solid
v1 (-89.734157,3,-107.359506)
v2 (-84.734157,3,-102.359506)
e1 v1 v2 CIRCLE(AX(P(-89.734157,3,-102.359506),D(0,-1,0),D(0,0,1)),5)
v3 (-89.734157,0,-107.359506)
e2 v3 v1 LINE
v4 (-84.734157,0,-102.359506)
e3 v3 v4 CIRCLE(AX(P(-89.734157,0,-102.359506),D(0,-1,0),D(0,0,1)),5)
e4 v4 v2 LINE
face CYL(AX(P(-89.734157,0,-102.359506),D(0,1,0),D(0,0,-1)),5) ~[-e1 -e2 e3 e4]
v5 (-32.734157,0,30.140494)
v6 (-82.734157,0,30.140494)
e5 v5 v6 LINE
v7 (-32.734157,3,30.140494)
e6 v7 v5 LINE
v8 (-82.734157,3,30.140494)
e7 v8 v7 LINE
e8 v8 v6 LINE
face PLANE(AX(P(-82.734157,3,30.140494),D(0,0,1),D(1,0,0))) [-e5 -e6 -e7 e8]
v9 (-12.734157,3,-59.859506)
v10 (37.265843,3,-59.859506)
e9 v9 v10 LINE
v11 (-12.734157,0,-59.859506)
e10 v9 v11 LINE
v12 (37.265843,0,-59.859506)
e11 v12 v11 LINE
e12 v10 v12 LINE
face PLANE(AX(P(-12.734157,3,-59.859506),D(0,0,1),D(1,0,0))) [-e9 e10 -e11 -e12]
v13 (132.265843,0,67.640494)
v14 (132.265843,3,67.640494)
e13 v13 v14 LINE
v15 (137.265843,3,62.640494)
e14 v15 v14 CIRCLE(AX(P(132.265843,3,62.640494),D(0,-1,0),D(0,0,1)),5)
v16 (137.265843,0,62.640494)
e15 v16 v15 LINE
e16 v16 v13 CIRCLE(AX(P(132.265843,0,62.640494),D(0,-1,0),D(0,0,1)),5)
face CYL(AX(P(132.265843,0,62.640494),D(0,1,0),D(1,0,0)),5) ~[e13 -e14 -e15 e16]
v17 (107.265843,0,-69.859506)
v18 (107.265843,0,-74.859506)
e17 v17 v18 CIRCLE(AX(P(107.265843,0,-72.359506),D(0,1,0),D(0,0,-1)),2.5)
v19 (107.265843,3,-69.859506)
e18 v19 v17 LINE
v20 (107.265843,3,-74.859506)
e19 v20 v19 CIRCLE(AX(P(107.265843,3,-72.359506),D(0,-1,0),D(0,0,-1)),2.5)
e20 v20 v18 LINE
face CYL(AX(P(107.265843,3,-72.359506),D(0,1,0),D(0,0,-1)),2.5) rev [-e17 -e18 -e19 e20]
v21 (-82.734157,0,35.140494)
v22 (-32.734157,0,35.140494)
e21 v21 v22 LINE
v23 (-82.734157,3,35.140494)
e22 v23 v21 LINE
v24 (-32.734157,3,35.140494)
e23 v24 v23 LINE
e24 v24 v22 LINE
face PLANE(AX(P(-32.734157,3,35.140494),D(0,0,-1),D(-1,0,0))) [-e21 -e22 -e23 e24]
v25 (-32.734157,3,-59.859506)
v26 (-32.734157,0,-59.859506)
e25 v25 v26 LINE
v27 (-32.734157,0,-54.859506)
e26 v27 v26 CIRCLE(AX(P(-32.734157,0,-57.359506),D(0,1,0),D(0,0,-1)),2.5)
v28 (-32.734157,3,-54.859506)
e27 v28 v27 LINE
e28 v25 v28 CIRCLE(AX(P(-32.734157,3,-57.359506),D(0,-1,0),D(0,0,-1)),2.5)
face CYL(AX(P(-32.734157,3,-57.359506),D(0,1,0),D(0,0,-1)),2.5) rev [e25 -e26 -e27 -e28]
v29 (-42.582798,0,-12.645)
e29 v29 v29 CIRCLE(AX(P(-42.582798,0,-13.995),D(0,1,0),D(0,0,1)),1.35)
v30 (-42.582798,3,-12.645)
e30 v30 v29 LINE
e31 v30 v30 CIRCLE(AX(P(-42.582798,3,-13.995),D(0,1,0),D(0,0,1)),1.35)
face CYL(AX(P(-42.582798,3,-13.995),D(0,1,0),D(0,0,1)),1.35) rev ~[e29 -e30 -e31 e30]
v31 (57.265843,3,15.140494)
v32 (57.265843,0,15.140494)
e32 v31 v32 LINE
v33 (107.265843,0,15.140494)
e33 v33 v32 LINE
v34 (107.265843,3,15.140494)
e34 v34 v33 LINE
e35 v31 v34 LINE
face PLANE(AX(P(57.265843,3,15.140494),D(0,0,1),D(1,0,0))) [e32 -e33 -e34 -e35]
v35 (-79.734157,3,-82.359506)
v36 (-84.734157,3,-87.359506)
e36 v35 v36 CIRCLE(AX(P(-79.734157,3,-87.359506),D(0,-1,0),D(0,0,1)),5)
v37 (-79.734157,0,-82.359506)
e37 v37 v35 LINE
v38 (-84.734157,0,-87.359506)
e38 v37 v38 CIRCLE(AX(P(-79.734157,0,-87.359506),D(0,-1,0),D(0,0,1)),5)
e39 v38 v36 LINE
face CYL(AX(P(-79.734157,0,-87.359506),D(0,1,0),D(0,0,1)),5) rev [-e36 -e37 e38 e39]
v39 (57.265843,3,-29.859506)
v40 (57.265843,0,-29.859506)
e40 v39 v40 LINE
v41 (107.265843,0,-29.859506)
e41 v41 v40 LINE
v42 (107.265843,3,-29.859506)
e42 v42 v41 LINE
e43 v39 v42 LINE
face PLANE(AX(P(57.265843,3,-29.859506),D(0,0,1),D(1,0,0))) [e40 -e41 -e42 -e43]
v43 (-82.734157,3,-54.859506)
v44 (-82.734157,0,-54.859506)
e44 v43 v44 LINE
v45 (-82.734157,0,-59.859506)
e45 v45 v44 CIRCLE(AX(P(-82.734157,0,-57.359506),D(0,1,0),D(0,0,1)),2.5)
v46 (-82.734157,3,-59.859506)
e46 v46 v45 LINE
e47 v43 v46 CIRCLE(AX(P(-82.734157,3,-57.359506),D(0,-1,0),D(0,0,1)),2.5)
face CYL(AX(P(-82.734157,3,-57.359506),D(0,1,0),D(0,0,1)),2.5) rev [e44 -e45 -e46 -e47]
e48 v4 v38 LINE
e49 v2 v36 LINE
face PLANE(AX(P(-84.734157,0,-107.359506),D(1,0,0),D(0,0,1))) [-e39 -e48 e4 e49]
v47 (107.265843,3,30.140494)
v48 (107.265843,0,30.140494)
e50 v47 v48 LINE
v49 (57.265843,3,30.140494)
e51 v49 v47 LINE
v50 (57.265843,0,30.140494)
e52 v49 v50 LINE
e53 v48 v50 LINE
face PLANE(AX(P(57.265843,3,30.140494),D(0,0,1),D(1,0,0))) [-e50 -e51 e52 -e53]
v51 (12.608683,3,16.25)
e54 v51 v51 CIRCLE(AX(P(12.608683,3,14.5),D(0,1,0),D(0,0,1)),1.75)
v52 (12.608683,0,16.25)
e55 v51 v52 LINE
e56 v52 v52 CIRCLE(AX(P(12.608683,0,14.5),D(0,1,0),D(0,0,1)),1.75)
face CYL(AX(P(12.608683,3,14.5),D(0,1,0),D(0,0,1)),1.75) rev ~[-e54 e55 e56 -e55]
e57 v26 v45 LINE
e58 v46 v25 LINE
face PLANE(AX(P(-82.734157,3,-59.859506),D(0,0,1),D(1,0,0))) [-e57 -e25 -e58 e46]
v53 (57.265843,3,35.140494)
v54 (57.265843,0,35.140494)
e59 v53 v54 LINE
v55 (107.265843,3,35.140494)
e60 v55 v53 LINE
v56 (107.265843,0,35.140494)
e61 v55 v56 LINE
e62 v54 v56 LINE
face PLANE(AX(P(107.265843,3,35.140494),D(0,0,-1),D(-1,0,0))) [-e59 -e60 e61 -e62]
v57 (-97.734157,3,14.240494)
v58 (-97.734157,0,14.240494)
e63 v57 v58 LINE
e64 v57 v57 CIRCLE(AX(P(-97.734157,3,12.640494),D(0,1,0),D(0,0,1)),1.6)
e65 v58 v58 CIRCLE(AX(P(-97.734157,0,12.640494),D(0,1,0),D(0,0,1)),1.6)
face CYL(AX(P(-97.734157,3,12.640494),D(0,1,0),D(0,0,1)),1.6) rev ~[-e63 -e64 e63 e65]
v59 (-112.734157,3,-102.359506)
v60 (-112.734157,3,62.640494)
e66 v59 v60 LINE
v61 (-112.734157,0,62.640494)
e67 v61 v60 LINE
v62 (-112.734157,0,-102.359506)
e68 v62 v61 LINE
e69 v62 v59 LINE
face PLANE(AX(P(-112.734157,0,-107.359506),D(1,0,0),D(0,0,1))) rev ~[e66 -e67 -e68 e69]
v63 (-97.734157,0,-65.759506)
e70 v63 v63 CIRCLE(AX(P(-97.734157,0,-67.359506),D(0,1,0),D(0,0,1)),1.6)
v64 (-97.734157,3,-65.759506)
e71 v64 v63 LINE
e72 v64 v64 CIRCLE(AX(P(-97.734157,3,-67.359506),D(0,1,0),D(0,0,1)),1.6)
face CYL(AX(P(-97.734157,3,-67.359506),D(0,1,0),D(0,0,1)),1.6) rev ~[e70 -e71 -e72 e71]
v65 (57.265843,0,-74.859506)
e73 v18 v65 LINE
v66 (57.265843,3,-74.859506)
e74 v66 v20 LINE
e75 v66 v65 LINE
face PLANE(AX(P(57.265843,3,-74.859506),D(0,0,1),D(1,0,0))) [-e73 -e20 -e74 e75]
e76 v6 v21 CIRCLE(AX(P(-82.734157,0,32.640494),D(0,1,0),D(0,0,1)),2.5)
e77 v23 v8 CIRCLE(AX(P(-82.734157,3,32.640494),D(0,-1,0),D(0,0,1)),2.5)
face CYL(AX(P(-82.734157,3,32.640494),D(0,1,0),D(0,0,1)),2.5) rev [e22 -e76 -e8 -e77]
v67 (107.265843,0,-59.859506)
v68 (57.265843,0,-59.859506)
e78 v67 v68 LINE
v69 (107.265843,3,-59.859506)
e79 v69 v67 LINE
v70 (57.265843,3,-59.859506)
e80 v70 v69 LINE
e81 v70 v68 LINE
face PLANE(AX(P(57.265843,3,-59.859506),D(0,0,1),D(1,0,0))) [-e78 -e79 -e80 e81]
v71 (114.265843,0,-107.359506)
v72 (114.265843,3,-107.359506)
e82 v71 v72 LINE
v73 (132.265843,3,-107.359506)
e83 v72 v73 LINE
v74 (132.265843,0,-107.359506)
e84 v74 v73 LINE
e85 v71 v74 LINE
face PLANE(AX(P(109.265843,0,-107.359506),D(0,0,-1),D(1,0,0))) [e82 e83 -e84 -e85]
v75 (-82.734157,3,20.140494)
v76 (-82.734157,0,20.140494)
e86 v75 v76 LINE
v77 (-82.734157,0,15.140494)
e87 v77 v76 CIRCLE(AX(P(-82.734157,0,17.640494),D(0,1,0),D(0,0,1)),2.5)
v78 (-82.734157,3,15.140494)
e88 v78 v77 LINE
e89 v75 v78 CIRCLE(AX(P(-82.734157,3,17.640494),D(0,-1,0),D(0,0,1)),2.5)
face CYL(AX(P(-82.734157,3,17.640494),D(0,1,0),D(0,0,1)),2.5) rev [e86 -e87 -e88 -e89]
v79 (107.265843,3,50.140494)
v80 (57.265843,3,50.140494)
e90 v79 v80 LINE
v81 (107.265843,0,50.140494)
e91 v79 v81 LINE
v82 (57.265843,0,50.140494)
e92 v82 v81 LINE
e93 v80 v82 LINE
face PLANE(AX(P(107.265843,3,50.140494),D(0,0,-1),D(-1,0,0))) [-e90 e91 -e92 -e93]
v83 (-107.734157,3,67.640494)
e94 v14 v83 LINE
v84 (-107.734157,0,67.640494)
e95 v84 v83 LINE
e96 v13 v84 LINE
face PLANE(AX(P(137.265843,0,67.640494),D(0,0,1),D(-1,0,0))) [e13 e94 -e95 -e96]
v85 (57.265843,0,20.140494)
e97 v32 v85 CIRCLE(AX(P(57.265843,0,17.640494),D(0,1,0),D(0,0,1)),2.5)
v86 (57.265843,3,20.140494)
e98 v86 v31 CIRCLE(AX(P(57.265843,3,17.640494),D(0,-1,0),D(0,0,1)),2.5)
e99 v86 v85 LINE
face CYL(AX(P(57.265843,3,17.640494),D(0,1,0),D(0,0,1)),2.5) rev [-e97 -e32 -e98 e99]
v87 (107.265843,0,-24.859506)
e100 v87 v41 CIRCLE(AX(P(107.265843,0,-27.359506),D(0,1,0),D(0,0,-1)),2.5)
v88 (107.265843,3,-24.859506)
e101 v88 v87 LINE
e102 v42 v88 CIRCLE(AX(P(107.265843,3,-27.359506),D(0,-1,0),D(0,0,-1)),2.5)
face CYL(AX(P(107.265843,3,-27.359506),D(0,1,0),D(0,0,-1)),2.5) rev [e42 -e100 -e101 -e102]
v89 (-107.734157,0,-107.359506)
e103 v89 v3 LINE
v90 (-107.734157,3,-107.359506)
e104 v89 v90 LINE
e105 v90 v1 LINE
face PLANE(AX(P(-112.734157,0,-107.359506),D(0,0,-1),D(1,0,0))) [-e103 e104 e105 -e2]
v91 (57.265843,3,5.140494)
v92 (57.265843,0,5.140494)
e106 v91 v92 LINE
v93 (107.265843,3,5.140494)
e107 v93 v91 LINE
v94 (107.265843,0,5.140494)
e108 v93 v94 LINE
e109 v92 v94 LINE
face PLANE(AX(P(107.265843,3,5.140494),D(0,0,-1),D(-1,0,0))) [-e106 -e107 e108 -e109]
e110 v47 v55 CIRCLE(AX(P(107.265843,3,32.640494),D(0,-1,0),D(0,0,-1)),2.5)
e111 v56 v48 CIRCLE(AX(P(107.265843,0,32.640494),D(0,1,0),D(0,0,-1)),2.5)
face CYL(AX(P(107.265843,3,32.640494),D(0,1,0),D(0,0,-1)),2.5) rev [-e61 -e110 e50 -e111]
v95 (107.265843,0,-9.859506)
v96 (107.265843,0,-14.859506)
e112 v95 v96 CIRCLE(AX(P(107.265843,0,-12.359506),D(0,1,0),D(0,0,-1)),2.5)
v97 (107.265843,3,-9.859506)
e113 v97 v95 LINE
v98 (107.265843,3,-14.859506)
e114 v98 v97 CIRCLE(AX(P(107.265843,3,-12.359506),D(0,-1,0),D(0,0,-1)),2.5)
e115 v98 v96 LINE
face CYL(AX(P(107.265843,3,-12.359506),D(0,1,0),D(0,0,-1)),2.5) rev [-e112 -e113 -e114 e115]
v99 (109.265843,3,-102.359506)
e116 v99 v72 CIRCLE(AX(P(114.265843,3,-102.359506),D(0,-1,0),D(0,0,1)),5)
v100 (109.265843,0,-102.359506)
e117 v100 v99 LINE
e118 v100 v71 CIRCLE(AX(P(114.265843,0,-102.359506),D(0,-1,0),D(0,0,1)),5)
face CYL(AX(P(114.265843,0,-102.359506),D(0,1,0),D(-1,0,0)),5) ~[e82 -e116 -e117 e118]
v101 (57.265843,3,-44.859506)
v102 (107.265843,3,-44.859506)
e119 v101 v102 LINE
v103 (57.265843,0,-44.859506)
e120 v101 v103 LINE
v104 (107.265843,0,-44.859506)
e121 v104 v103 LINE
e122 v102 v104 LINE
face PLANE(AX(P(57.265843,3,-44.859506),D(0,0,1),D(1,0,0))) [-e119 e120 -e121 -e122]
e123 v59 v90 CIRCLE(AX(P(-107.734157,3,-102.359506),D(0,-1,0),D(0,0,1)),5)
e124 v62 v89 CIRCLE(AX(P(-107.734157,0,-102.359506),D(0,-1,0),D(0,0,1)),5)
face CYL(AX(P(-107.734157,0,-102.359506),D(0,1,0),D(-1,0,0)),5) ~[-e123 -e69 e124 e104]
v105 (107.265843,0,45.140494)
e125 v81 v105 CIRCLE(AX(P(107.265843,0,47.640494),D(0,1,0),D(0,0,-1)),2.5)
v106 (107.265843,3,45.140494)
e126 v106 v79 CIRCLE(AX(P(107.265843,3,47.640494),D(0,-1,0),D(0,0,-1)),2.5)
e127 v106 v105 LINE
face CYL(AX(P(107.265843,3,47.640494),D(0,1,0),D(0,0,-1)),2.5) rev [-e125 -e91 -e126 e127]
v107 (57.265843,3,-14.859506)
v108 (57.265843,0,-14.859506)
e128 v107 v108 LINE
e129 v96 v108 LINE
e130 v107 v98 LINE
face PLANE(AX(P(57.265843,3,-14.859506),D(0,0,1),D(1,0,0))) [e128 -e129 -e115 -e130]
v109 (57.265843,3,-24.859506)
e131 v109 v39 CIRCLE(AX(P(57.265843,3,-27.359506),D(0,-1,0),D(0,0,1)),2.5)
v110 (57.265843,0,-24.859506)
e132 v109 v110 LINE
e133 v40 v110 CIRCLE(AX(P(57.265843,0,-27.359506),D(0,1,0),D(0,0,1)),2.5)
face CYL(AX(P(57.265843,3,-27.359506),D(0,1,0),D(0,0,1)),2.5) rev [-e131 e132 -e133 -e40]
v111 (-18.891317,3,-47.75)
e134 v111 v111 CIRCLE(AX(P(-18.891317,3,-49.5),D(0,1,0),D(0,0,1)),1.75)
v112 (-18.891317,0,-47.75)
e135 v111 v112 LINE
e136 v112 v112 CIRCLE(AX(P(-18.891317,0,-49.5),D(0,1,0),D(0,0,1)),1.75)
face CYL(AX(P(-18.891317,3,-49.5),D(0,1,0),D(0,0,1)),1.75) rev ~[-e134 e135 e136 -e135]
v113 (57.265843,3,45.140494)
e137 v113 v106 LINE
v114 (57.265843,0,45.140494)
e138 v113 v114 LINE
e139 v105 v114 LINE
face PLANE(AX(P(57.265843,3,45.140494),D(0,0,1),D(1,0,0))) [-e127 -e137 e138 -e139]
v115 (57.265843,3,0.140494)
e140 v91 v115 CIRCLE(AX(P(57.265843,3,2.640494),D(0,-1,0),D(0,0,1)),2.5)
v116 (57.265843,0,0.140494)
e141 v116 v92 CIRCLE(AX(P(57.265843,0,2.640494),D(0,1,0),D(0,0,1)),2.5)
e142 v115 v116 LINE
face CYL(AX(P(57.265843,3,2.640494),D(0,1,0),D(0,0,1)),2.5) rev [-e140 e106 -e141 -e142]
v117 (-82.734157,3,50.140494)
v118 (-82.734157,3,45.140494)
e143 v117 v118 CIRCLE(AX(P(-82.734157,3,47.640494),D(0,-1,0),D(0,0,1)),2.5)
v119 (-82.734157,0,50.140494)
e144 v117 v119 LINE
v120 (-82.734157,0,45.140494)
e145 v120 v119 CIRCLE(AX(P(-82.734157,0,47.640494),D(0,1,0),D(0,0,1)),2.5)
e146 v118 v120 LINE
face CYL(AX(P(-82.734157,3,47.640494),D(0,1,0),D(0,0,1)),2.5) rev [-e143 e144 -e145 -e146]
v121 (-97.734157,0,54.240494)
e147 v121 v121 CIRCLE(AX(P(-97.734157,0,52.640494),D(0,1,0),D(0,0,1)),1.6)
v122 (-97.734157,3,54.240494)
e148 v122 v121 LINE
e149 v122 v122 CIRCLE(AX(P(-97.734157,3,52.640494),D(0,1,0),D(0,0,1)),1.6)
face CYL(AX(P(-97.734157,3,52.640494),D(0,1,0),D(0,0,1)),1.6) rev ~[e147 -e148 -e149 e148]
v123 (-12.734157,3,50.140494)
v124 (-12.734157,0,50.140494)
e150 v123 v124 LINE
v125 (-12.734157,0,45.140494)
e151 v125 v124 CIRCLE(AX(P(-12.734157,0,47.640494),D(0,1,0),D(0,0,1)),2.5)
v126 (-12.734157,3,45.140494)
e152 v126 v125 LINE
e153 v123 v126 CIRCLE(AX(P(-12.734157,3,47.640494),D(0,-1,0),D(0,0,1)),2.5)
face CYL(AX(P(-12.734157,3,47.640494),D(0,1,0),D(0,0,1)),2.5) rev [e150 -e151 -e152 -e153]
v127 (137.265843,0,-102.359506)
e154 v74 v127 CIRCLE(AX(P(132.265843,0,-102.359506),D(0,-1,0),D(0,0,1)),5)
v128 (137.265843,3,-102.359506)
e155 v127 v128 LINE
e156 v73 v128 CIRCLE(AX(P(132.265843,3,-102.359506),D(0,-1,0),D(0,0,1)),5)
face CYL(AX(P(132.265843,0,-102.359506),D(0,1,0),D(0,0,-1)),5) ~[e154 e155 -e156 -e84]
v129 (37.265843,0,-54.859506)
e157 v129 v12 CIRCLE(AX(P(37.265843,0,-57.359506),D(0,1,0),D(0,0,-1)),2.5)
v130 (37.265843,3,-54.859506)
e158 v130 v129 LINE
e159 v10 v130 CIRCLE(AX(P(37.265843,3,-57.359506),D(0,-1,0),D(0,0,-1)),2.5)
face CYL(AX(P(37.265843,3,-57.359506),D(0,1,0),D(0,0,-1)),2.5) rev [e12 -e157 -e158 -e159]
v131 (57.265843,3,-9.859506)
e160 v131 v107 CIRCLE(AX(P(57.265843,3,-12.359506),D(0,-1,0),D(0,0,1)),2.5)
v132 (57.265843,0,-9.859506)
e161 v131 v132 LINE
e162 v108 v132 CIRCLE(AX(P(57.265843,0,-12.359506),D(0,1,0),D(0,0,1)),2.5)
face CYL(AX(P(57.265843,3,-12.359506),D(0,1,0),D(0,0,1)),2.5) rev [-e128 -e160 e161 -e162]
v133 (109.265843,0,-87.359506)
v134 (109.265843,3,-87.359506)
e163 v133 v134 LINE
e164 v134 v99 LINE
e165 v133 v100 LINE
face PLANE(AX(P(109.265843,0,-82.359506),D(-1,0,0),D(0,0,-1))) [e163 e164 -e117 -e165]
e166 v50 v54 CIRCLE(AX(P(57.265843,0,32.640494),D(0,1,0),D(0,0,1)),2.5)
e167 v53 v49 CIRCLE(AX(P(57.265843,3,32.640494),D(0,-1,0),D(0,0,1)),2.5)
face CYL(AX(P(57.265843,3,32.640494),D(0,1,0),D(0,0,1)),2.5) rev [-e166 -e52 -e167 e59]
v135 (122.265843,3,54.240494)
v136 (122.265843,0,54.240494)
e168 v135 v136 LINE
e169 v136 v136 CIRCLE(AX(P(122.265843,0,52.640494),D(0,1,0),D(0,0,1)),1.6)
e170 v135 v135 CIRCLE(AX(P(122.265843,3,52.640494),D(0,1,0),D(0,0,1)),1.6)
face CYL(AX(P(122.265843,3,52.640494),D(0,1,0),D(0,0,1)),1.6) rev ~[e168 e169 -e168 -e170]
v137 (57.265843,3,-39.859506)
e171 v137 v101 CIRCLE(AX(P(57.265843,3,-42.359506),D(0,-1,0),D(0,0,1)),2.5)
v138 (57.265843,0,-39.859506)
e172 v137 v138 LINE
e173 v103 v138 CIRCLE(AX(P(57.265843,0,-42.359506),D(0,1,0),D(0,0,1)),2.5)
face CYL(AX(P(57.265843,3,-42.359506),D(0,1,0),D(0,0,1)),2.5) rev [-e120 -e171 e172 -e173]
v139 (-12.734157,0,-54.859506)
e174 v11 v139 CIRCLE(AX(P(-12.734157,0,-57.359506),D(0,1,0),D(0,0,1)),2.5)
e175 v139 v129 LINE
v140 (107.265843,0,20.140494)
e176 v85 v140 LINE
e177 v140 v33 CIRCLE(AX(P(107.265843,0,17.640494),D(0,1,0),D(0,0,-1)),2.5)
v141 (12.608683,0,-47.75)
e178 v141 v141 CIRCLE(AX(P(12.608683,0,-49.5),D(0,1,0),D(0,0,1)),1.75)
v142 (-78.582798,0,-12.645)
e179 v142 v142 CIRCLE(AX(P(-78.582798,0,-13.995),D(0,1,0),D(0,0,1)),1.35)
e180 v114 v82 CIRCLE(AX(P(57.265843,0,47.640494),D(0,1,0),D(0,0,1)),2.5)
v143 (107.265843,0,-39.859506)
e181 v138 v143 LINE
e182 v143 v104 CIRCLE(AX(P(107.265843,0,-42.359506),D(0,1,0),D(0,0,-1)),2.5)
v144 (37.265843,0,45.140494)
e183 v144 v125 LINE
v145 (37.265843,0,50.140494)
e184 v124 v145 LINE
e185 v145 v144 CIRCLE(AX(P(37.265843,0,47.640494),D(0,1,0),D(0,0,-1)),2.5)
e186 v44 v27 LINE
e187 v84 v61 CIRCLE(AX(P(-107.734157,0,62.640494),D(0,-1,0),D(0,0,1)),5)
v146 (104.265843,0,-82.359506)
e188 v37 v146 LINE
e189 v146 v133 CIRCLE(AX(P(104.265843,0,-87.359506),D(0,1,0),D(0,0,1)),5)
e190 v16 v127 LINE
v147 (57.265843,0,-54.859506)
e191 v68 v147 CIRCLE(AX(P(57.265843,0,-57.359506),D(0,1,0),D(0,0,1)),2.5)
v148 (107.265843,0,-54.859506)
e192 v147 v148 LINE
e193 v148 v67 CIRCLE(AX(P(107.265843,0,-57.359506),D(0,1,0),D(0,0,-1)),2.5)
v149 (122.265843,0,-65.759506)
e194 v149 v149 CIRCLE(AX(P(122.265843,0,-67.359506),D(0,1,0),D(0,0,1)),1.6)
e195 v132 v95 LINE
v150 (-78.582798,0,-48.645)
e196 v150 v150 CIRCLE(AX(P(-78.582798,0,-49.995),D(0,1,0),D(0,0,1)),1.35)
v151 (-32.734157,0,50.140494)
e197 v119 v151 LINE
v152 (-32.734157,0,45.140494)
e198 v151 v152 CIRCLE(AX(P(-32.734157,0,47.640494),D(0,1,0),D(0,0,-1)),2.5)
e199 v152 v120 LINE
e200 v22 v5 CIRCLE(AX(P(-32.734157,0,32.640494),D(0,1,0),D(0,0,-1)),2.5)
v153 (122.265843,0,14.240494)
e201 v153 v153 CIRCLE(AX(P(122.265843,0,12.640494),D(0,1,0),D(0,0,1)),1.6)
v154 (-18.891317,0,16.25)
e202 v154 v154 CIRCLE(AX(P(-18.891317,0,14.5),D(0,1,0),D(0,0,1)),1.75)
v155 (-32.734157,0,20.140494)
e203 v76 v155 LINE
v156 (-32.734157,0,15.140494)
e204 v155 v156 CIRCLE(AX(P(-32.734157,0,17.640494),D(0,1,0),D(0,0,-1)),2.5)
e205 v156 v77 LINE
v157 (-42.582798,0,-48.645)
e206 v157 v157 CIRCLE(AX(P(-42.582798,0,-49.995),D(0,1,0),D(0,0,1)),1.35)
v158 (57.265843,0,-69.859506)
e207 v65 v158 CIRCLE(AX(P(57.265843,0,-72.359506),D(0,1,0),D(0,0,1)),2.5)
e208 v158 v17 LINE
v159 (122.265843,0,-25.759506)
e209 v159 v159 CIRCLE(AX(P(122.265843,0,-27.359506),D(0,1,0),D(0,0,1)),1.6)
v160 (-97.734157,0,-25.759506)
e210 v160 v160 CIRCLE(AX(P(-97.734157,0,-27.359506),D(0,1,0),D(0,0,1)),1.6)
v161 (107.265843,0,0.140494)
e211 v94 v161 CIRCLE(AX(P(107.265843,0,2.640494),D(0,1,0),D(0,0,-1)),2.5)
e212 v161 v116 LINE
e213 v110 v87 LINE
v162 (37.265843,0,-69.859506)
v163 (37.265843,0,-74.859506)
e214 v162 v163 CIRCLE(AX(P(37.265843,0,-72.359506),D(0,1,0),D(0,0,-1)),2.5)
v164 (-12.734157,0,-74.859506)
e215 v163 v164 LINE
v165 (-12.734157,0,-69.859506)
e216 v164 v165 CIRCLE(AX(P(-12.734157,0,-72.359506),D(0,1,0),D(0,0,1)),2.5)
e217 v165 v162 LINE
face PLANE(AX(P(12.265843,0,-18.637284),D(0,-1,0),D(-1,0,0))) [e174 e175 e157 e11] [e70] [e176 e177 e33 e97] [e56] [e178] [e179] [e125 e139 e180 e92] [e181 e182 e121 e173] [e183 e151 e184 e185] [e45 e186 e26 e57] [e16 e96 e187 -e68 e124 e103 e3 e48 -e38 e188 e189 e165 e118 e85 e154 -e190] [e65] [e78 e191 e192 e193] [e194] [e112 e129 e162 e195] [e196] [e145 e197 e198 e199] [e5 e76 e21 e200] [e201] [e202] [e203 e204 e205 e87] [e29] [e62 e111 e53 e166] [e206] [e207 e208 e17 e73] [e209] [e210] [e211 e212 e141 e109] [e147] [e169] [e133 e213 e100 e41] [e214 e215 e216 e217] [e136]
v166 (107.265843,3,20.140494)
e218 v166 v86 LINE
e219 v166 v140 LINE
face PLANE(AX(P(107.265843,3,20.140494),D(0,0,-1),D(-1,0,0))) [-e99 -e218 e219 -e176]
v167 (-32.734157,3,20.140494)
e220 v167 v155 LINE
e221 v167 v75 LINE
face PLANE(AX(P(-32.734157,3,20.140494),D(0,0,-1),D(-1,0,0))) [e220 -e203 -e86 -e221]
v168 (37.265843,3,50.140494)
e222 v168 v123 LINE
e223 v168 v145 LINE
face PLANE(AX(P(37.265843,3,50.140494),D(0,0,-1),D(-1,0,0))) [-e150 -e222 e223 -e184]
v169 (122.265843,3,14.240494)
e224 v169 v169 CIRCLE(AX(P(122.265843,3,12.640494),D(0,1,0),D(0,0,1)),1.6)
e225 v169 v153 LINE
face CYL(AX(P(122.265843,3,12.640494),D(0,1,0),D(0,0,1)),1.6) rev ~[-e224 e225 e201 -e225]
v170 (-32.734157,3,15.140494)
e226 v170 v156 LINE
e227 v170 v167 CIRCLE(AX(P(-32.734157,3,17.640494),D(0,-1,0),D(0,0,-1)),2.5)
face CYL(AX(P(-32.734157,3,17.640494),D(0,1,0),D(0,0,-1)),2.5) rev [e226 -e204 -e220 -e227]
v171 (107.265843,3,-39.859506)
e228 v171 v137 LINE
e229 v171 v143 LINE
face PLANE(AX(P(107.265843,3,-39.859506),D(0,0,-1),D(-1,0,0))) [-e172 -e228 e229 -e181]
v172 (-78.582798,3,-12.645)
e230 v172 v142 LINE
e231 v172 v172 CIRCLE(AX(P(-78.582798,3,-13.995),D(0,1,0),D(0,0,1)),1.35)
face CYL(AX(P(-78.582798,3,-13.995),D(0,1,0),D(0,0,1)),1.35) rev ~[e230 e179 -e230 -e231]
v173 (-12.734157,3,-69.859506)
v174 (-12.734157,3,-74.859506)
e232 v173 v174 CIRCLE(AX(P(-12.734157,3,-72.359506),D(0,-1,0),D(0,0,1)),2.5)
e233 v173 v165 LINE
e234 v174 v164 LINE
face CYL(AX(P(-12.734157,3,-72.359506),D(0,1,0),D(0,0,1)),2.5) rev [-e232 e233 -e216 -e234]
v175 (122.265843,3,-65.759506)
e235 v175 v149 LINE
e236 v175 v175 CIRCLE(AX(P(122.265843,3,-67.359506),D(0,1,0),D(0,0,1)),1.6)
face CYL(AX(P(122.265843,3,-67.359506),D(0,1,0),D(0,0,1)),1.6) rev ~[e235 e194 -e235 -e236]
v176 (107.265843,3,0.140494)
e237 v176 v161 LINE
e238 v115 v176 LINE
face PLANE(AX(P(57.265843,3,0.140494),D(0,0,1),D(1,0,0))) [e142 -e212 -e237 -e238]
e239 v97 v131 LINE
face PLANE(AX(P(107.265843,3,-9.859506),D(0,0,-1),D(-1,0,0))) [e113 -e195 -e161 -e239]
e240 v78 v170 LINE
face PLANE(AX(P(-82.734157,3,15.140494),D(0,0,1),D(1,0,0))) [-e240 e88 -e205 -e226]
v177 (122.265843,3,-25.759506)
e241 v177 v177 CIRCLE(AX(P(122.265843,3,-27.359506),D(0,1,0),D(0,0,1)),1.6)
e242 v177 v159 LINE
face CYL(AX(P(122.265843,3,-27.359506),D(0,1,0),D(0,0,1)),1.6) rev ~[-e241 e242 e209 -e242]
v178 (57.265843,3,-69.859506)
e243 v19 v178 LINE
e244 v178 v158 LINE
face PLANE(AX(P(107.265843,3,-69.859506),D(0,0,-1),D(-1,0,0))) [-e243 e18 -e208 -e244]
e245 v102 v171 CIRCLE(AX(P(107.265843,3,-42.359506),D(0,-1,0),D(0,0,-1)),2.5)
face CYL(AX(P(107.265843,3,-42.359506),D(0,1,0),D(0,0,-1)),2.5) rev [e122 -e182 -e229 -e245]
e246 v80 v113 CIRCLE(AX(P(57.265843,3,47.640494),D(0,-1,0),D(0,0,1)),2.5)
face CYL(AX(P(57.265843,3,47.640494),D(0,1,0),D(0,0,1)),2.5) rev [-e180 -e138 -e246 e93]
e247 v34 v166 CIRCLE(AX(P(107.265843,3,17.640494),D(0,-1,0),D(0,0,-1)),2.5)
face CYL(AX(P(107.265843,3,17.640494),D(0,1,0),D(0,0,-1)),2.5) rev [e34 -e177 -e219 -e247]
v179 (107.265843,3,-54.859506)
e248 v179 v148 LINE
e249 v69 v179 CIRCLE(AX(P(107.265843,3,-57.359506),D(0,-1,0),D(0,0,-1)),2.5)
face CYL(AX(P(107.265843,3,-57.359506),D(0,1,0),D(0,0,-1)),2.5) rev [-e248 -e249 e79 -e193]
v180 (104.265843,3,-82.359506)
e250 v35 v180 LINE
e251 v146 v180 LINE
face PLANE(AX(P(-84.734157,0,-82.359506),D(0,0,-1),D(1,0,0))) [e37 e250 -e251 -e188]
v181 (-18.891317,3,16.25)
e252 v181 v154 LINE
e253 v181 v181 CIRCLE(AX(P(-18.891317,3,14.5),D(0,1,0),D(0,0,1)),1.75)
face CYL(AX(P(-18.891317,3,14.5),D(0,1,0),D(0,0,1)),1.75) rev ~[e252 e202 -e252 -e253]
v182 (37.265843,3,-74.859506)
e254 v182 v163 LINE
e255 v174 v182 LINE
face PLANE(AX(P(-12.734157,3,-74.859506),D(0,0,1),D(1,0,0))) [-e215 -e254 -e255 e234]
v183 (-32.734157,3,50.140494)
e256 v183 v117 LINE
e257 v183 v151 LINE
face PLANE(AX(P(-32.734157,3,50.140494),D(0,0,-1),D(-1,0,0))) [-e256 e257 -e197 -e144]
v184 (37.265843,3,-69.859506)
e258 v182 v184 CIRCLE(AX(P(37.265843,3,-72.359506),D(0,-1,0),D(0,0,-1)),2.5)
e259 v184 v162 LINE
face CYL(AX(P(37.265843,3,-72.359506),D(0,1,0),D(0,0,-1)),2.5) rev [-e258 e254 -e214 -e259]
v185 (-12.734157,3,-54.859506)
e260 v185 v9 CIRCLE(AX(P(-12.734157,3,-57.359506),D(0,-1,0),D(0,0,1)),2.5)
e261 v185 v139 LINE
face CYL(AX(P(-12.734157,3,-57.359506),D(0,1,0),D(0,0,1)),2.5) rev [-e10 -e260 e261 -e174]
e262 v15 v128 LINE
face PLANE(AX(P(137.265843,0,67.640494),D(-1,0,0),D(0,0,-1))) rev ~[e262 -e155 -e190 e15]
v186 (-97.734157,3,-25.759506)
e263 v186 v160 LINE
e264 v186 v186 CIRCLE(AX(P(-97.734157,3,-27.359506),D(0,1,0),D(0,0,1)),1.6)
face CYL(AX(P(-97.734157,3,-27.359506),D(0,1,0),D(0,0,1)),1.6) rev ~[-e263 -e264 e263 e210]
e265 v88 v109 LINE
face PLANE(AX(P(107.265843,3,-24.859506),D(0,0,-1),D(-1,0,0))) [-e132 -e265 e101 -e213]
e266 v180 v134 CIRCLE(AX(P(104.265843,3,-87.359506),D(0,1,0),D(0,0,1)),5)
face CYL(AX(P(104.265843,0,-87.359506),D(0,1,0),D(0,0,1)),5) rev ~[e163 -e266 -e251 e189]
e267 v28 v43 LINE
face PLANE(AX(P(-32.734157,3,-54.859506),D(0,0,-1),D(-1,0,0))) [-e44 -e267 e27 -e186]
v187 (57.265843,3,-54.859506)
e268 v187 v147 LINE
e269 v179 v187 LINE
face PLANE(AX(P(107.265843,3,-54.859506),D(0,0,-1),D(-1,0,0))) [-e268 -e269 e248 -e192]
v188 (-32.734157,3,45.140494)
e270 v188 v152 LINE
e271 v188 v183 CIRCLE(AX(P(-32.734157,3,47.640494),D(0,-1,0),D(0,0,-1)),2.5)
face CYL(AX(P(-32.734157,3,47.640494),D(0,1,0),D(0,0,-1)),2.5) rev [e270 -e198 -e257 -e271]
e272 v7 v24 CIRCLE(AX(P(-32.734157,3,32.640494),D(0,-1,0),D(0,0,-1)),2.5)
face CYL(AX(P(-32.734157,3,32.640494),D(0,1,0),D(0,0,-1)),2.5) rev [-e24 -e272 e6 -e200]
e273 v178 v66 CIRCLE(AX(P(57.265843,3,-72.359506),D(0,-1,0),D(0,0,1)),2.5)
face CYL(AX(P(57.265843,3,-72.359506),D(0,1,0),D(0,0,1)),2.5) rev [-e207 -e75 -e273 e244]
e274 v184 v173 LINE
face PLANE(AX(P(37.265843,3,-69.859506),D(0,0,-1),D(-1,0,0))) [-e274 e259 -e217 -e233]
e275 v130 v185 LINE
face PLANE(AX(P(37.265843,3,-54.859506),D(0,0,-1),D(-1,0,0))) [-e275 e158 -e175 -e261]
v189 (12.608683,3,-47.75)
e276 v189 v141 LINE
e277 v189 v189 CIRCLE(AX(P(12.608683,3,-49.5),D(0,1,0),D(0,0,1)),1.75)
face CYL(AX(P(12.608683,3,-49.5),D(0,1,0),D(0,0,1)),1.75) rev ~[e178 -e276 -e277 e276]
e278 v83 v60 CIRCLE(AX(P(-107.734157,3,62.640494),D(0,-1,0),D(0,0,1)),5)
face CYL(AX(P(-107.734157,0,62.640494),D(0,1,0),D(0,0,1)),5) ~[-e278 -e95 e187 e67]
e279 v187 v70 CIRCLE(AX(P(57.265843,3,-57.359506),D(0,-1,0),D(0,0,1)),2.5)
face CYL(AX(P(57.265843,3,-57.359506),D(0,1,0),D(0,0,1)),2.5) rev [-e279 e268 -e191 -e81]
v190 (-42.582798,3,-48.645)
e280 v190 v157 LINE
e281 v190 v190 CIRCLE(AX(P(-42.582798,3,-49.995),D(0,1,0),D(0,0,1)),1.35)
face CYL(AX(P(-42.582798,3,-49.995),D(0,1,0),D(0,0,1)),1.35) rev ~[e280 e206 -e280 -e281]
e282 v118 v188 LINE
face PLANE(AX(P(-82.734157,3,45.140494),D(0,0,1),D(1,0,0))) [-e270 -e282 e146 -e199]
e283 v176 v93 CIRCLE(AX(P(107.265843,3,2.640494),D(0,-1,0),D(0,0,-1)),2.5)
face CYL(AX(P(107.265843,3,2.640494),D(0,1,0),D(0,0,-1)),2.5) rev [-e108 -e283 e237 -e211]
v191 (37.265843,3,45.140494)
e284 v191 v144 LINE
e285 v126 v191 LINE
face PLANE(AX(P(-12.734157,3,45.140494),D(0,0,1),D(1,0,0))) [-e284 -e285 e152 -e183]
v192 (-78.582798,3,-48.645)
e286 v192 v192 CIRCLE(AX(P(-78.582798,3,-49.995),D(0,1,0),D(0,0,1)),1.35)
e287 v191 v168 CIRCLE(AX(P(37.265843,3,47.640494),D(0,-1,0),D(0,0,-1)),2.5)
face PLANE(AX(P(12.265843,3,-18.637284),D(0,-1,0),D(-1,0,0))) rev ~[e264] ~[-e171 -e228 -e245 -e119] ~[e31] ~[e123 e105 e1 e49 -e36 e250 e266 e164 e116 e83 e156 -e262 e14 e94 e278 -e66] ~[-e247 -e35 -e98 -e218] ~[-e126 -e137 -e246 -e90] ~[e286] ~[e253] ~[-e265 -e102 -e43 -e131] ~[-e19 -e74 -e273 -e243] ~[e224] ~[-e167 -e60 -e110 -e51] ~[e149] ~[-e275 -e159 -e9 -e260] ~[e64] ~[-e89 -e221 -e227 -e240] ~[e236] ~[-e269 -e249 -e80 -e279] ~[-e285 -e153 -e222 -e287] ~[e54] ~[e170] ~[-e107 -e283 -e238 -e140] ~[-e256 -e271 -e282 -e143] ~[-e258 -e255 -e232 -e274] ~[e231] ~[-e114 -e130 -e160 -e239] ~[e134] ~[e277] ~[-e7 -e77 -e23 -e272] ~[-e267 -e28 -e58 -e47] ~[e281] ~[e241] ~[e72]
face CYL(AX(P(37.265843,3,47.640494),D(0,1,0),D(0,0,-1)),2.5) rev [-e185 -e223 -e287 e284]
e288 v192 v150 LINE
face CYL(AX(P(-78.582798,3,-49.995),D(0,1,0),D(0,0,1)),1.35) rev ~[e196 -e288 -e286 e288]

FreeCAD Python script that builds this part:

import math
import FreeCAD as App
import Part
import Sketcher
from FreeCAD import Vector
Q = App.Units.Quantity


def edges_at(feature, points):
    """Names of the edges that pass closest to the given points."""
    edges = feature.Shape.Edges
    near = lambda p: min(range(len(edges)), key=lambda i: edges[i].distToShape(Part.Vertex(*p))[0])
    return sorted({f"Edge{near(p) + 1}" for p in points})

doc = App.newDocument("Part")
body = doc.addObject("PartDesign::Body", "Body")

sketch1 = doc.addObject("Sketcher::SketchObject", "Sketch")
body.addObject(sketch1)
sketch1.AttachmentSupport = (doc.XZ_Plane, [""])
sketch1.MapMode = "FlatFace"
sketch1.addGeometry([
    Part.LineSegment(Vector(109.265843, -82.359506, 0), Vector(-84.734157, -82.359506, 0)),
    Part.LineSegment(Vector(-84.734157, -82.359506, 0), Vector(-84.734157, -107.359506, 0)),
    Part.LineSegment(Vector(-84.734157, -107.359506, 0), Vector(-112.734157, -107.359506, 0)),
    Part.LineSegment(Vector(-112.734157, -107.359506, 0), Vector(-112.734157, 67.640494, 0)),
    Part.LineSegment(Vector(-112.734157, 67.640494, 0), Vector(137.265843, 67.640494, 0)),
    Part.LineSegment(Vector(137.265843, 67.640494, 0), Vector(137.265843, -107.359506, 0)),
    Part.LineSegment(Vector(137.265843, -107.359506, 0), Vector(109.265843, -107.359506, 0)),
    Part.LineSegment(Vector(109.265843, -107.359506, 0), Vector(109.265843, -82.359506, 0)),
], False)
sketch1.addConstraint([
    Sketcher.Constraint("Coincident", 0, 2, 1, 1),
    Sketcher.Constraint("Coincident", 1, 2, 2, 1),
    Sketcher.Constraint("Coincident", 2, 2, 3, 1),
    Sketcher.Constraint("Coincident", 3, 2, 4, 1),
    Sketcher.Constraint("Coincident", 4, 2, 5, 1),
    Sketcher.Constraint("Coincident", 5, 2, 6, 1),
    Sketcher.Constraint("Coincident", 6, 2, 7, 1),
    Sketcher.Constraint("Coincident", 7, 2, 0, 1),
    Sketcher.Constraint("Horizontal", 0),
    Sketcher.Constraint("Vertical", 1),
    Sketcher.Constraint("Horizontal", 2),
    Sketcher.Constraint("Vertical", 3),
    Sketcher.Constraint("Horizontal", 4),
    Sketcher.Constraint("Vertical", 5),
    Sketcher.Constraint("Horizontal", 6),
    Sketcher.Constraint("Vertical", 7),
    Sketcher.Constraint("Horizontal", 2, 2, 5, 2),
    Sketcher.Constraint("Equal", 2, 6),
    Sketcher.Constraint("DistanceX", 0, 2, 0, 1, Q("194 mm")),
    Sketcher.Constraint("DistanceX", 2, 2, 2, 1, Q("28 mm")),
    Sketcher.Constraint("DistanceY", 1, 2, 1, 1, Q("25 mm")),
    Sketcher.Constraint("DistanceY", 3, 1, 3, 2, Q("175 mm")),
    Sketcher.Constraint("DistanceX", 0, 2, -1, 1, Q("84.734157 mm")),
    Sketcher.Constraint("DistanceY", 0, 2, -1, 1, Q("82.359506 mm")),
])
pad1 = doc.addObject("PartDesign::Pad", "Pad")
body.addObject(pad1)
pad1.Profile = sketch1
pad1.Length = 3
pad1.Reversed = True
doc.recompute()

fillet = doc.addObject("PartDesign::Fillet", "Fillet")
body.addObject(fillet)
fillet.Base = (pad1, edges_at(pad1, [
    (137.266, 1.5, 67.64),
    (-112.734, 1.5, 67.64),
    (-112.734, 1.5, -107.36),
    (-84.734, 1.5, -107.36),
    (-84.734, 1.5, -82.36),
    (109.266, 1.5, -82.36),
    (109.266, 1.5, -107.36),
    (137.266, 1.5, -107.36),
]))
fillet.Radius = 5

sketch2 = doc.addObject("Sketcher::SketchObject", "Sketch001")
body.addObject(sketch2)
sketch2.AttachmentSupport = (doc.XZ_Plane, [""])
sketch2.MapMode = "FlatFace"
sketch2.AttachmentOffset = App.Placement(Vector(0, 0, -3), App.Rotation())
sketch2.addGeometry([
    Part.Circle(Vector(12.608683, -49.5, 0), Vector(0, 0, 1), 1.75),
    Part.Circle(Vector(-18.891317, 14.5, 0), Vector(0, 0, 1), 1.75),
    Part.Circle(Vector(-42.582798, -49.995, 0), Vector(0, 0, 1), 1.35),
    Part.Circle(Vector(-78.582798, -13.995, 0), Vector(0, 0, 1), 1.35),
    Part.Circle(Vector(-42.582798, -13.995, 0), Vector(0, 0, 1), 1.35),
    Part.Circle(Vector(12.608683, 14.5, 0), Vector(0, 0, 1), 1.75),
    Part.Circle(Vector(-18.891317, -49.5, 0), Vector(0, 0, 1), 1.75),
    Part.Circle(Vector(-78.582798, -49.995, 0), Vector(0, 0, 1), 1.35),
], False)
sketch2.addConstraint([
    Sketcher.Constraint("Equal", 0, 1),
    Sketcher.Constraint("Equal", 2, 3),
    Sketcher.Constraint("Equal", 3, 4),
    Sketcher.Constraint("Equal", 1, 5),
    Sketcher.Constraint("Equal", 5, 6),
    Sketcher.Constraint("Equal", 4, 7),
    Sketcher.Constraint("Horizontal", 3, 3, 4, 3),
    Sketcher.Constraint("Horizontal", 1, 3, 5, 3),
    Sketcher.Constraint("Horizontal", 0, 3, 6, 3),
    Sketcher.Constraint("Horizontal", 2, 3, 7, 3),
    Sketcher.Constraint("Vertical", 2, 3, 4, 3),
    Sketcher.Constraint("Vertical", 0, 3, 5, 3),
    Sketcher.Constraint("Vertical", 1, 3, 6, 3),
    Sketcher.Constraint("Vertical", 3, 3, 7, 3),
    Sketcher.Constraint("Diameter", 0, Q("3.5 mm")),
    Sketcher.Constraint("Diameter", 2, Q("2.7 mm")),
    Sketcher.Constraint("DistanceY", 0, 3, 1, 3, Q("64 mm")),
    Sketcher.Constraint("DistanceX", 3, 3, 2, 3, Q("36 mm")),
    Sketcher.Constraint("DistanceY", 2, 3, 3, 3, Q("36 mm")),
    Sketcher.Constraint("DistanceY", 0, 3, -1, 1, Q("49.5 mm")),
    Sketcher.Constraint("DistanceX", 1, 3, 0, 3, Q("31.5 mm")),
    Sketcher.Constraint("DistanceY", 2, 3, -1, 1, Q("49.995 mm")),
    Sketcher.Constraint("DistanceX", 2, 3, 0, 3, Q("55.191481 mm")),
    Sketcher.Constraint("DistanceX", -1, 1, 0, 3, Q("12.608683 mm")),
])
pocket1 = doc.addObject("PartDesign::Pocket", "Pocket")
body.addObject(pocket1)
pocket1.Profile = sketch2
pocket1.Length = 10
pocket1.Reversed = True

sketch3 = doc.addObject("Sketcher::SketchObject", "Sketch002")
body.addObject(sketch3)
sketch3.AttachmentSupport = (doc.XZ_Plane, [""])
sketch3.MapMode = "FlatFace"
sketch3.AttachmentOffset = App.Placement(Vector(0, 0, -3), App.Rotation())
sketch3.addGeometry([
    Part.LineSegment(Vector(107.265843, -74.859506, 0), Vector(57.265843, -74.859506, 0)),
    Part.ArcOfCircle(Part.Circle(Vector(57.265843, -72.359506, 0), Vector(0, 0, 1), 2.5), math.radians(90), math.radians(270)),
    Part.LineSegment(Vector(57.265843, -69.859506, 0), Vector(107.265843, -69.859506, 0)),
    Part.ArcOfCircle(Part.Circle(Vector(107.265843, -72.359506, 0), Vector(0, 0, 1), 2.5), math.radians(-90), math.radians(90)),
    Part.LineSegment(Vector(107.265843, -59.859506, 0), Vector(57.265843, -59.859506, 0)),
    Part.ArcOfCircle(Part.Circle(Vector(57.265843, -57.359506, 0), Vector(0, 0, 1), 2.5), math.radians(90), math.radians(270)),
    Part.LineSegment(Vector(57.265843, -54.859506, 0), Vector(107.265843, -54.859506, 0)),
    Part.ArcOfCircle(Part.Circle(Vector(107.265843, -57.359506, 0), Vector(0, 0, 1), 2.5), math.radians(-90), math.radians(90)),
    Part.LineSegment(Vector(107.265843, -44.859506, 0), Vector(57.265843, -44.859506, 0)),
    Part.ArcOfCircle(Part.Circle(Vector(57.265843, -42.359506, 0), Vector(0, 0, 1), 2.5), math.radians(90), math.radians(270)),
    Part.LineSegment(Vector(57.265843, -39.859506, 0), Vector(107.265843, -39.859506, 0)),
    Part.ArcOfCircle(Part.Circle(Vector(107.265843, -42.359506, 0), Vector(0, 0, 1), 2.5), math.radians(-90), math.radians(90)),
    Part.LineSegment(Vector(107.265843, -29.859506, 0), Vector(57.265843, -29.859506, 0)),
    Part.ArcOfCircle(Part.Circle(Vector(57.265843, -27.359506, 0), Vector(0, 0, 1), 2.5), math.radians(90), math.radians(270)),
    Part.LineSegment(Vector(57.265843, -24.859506, 0), Vector(107.265843, -24.859506, 0)),
    Part.ArcOfCircle(Part.Circle(Vector(107.265843, -27.359506, 0), Vector(0, 0, 1), 2.5), math.radians(-90), math.radians(90)),
    Part.LineSegment(Vector(107.265843, -14.859506, 0), Vector(57.265843, -14.859506, 0)),
    Part.ArcOfCircle(Part.Circle(Vector(57.265843, -12.359506, 0), Vector(0, 0, 1), 2.5), math.radians(90), math.radians(270)),
    Part.LineSegment(Vector(57.265843, -9.859506, 0), Vector(107.265843, -9.859506, 0)),
    Part.ArcOfCircle(Part.Circle(Vector(107.265843, -12.359506, 0), Vector(0, 0, 1), 2.5), math.radians(-90), math.radians(90)),
    Part.LineSegment(Vector(107.265843, 0.140494, 0), Vector(57.265843, 0.140494, 0)),
    Part.ArcOfCircle(Part.Circle(Vector(57.265843, 2.640494, 0), Vector(0, 0, 1), 2.5), math.radians(90), math.radians(270)),
    Part.LineSegment(Vector(57.265843, 5.140494, 0), Vector(107.265843, 5.140494, 0)),
    Part.ArcOfCircle(Part.Circle(Vector(107.265843, 2.640494, 0), Vector(0, 0, 1), 2.5), math.radians(-90), math.radians(90)),
    Part.LineSegment(Vector(107.265843, 15.140494, 0), Vector(57.265843, 15.140494, 0)),
    Part.ArcOfCircle(Part.Circle(Vector(57.265843, 17.640494, 0), Vector(0, 0, 1), 2.5), math.radians(90), math.radians(270)),
    Part.LineSegment(Vector(57.265843, 20.140494, 0), Vector(107.265843, 20.140494, 0)),
    Part.ArcOfCircle(Part.Circle(Vector(107.265843, 17.640494, 0), Vector(0, 0, 1), 2.5), math.radians(-90), math.radians(90)),
    Part.LineSegment(Vector(107.265843, 30.140494, 0), Vector(57.265843, 30.140494, 0)),
    Part.ArcOfCircle(Part.Circle(Vector(57.265843, 32.640494, 0), Vector(0, 0, 1), 2.5), math.radians(90), math.radians(270)),
    Part.LineSegment(Vector(57.265843, 35.140494, 0), Vector(107.265843, 35.140494, 0)),
    Part.ArcOfCircle(Part.Circle(Vector(107.265843, 32.640494, 0), Vector(0, 0, 1), 2.5), math.radians(-90), math.radians(90)),
    Part.LineSegment(Vector(107.265843, 45.140494, 0), Vector(57.265843, 45.140494, 0)),
    Part.ArcOfCircle(Part.Circle(Vector(57.265843, 47.640494, 0), Vector(0, 0, 1), 2.5), math.radians(90), math.radians(270)),
    Part.LineSegment(Vector(57.265843, 50.140494, 0), Vector(107.265843, 50.140494, 0)),
    Part.ArcOfCircle(Part.Circle(Vector(107.265843, 47.640494, 0), Vector(0, 0, 1), 2.5), math.radians(-90), math.radians(90)),
    Part.LineSegment(Vector(37.265843, -74.859506, 0), Vector(-12.734157, -74.859506, 0)),
    Part.ArcOfCircle(Part.Circle(Vector(-12.734157, -72.359506, 0), Vector(0, 0, 1), 2.5), math.radians(90), math.radians(270)),
    Part.LineSegment(Vector(-12.734157, -69.859506, 0), Vector(37.265843, -69.859506, 0)),
    Part.ArcOfCircle(Part.Circle(Vector(37.265843, -72.359506, 0), Vector(0, 0, 1), 2.5), math.radians(-90), math.radians(90)),
    Part.LineSegment(Vector(37.265843, -59.859506, 0), Vector(-12.734157, -59.859506, 0)),
    Part.ArcOfCircle(Part.Circle(Vector(-12.734157, -57.359506, 0), Vector(0, 0, 1), 2.5), math.radians(90), math.radians(270)),
    Part.LineSegment(Vector(-12.734157, -54.859506, 0), Vector(37.265843, -54.859506, 0)),
    Part.ArcOfCircle(Part.Circle(Vector(37.265843, -57.359506, 0), Vector(0, 0, 1), 2.5), math.radians(-90), math.radians(90)),
    Part.LineSegment(Vector(-32.734157, -59.859506, 0), Vector(-82.734157, -59.859506, 0)),
    Part.ArcOfCircle(Part.Circle(Vector(-82.734157, -57.359506, 0), Vector(0, 0, 1), 2.5), math.radians(90), math.radians(270)),
    Part.LineSegment(Vector(-82.734157, -54.859506, 0), Vector(-32.734157, -54.859506, 0)),
    Part.ArcOfCircle(Part.Circle(Vector(-32.734157, -57.359506, 0), Vector(0, 0, 1), 2.5), math.radians(-90), math.radians(90)),
    Part.LineSegment(Vector(37.265843, 45.140494, 0), Vector(-12.734157, 45.140494, 0)),
    Part.ArcOfCircle(Part.Circle(Vector(-12.734157, 47.640494, 0), Vector(0, 0, 1), 2.5), math.radians(90), math.radians(270)),
    Part.LineSegment(Vector(-12.734157, 50.140494, 0), Vector(37.265843, 50.140494, 0)),
    Part.ArcOfCircle(Part.Circle(Vector(37.265843, 47.640494, 0), Vector(0, 0, 1), 2.5), math.radians(-90), math.radians(90)),
    Part.LineSegment(Vector(-32.734157, 45.140494, 0), Vector(-82.734157, 45.140494, 0)),
    Part.ArcOfCircle(Part.Circle(Vector(-82.734157, 47.640494, 0), Vector(0, 0, 1), 2.5), math.radians(90), math.radians(270)),
    Part.LineSegment(Vector(-82.734157, 50.140494, 0), Vector(-32.734157, 50.140494, 0)),
    Part.ArcOfCircle(Part.Circle(Vector(-32.734157, 47.640494, 0), Vector(0, 0, 1), 2.5), math.radians(-90), math.radians(90)),
    Part.LineSegment(Vector(-32.734157, 30.140494, 0), Vector(-82.734157, 30.140494, 0)),
    Part.ArcOfCircle(Part.Circle(Vector(-82.734157, 32.640494, 0), Vector(0, 0, 1), 2.5), math.radians(90), math.radians(270)),
    Part.LineSegment(Vector(-82.734157, 35.140494, 0), Vector(-32.734157, 35.140494, 0)),
    Part.ArcOfCircle(Part.Circle(Vector(-32.734157, 32.640494, 0), Vector(0, 0, 1), 2.5), math.radians(-90), math.radians(90)),
    Part.LineSegment(Vector(-32.734157, 15.140494, 0), Vector(-82.734157, 15.140494, 0)),
    Part.ArcOfCircle(Part.Circle(Vector(-82.734157, 17.640494, 0), Vector(0, 0, 1), 2.5), math.radians(90), math.radians(270)),
    Part.LineSegment(Vector(-82.734157, 20.140494, 0), Vector(-32.734157, 20.140494, 0)),
    Part.ArcOfCircle(Part.Circle(Vector(-32.734157, 17.640494, 0), Vector(0, 0, 1), 2.5), math.radians(-90), math.radians(90)),
], False)
sketch3.addConstraint([
    Sketcher.Constraint("Tangent", 0, 2, 1, 2),
    Sketcher.Constraint("Tangent", 1, 1, 2, 1),
    Sketcher.Constraint("Tangent", 2, 2, 3, 2),
    Sketcher.Constraint("Tangent", 3, 1, 0, 1),
    Sketcher.Constraint("Tangent", 4, 2, 5, 2),
    Sketcher.Constraint("Tangent", 5, 1, 6, 1),
    Sketcher.Constraint("Tangent", 6, 2, 7, 2),
    Sketcher.Constraint("Tangent", 7, 1, 4, 1),
    Sketcher.Constraint("Tangent", 8, 2, 9, 2),
    Sketcher.Constraint("Tangent", 9, 1, 10, 1),
    Sketcher.Constraint("Tangent", 10, 2, 11, 2),
    Sketcher.Constraint("Tangent", 11, 1, 8, 1),
    Sketcher.Constraint("Tangent", 12, 2, 13, 2),
    Sketcher.Constraint("Tangent", 13, 1, 14, 1),
    Sketcher.Constraint("Tangent", 14, 2, 15, 2),
    Sketcher.Constraint("Tangent", 15, 1, 12, 1),
    Sketcher.Constraint("Tangent", 16, 2, 17, 2),
    Sketcher.Constraint("Tangent", 17, 1, 18, 1),
    Sketcher.Constraint("Tangent", 18, 2, 19, 2),
    Sketcher.Constraint("Tangent", 19, 1, 16, 1),
    Sketcher.Constraint("Tangent", 20, 2, 21, 2),
    Sketcher.Constraint("Tangent", 21, 1, 22, 1),
    Sketcher.Constraint("Tangent", 22, 2, 23, 2),
    Sketcher.Constraint("Tangent", 23, 1, 20, 1),
    Sketcher.Constraint("Tangent", 24, 2, 25, 2),
    Sketcher.Constraint("Tangent", 25, 1, 26, 1),
    Sketcher.Constraint("Tangent", 26, 2, 27, 2),
    Sketcher.Constraint("Tangent", 27, 1, 24, 1),
    Sketcher.Constraint("Tangent", 28, 2, 29, 2),
    Sketcher.Constraint("Tangent", 29, 1, 30, 1),
    Sketcher.Constraint("Tangent", 30, 2, 31, 2),
    Sketcher.Constraint("Tangent", 31, 1, 28, 1),
    Sketcher.Constraint("Tangent", 32, 2, 33, 2),
    Sketcher.Constraint("Tangent", 33, 1, 34, 1),
    Sketcher.Constraint("Tangent", 34, 2, 35, 2),
    Sketcher.Constraint("Tangent", 35, 1, 32, 1),
    Sketcher.Constraint("Tangent", 36, 2, 37, 2),
    Sketcher.Constraint("Tangent", 37, 1, 38, 1),
    Sketcher.Constraint("Tangent", 38, 2, 39, 2),
    Sketcher.Constraint("Tangent", 39, 1, 36, 1),
    Sketcher.Constraint("Tangent", 40, 2, 41, 2),
    Sketcher.Constraint("Tangent", 41, 1, 42, 1),
    Sketcher.Constraint("Tangent", 42, 2, 43, 2),
    Sketcher.Constraint("Tangent", 43, 1, 40, 1),
    Sketcher.Constraint("Tangent", 44, 2, 45, 2),
    Sketcher.Constraint("Tangent", 45, 1, 46, 1),
    Sketcher.Constraint("Tangent", 46, 2, 47, 2),
    Sketcher.Constraint("Tangent", 47, 1, 44, 1),
    Sketcher.Constraint("Tangent", 48, 2, 49, 2),
    Sketcher.Constraint("Tangent", 49, 1, 50, 1),
    Sketcher.Constraint("Tangent", 50, 2, 51, 2),
    Sketcher.Constraint("Tangent", 51, 1, 48, 1),
    Sketcher.Constraint("Tangent", 52, 2, 53, 2),
    Sketcher.Constraint("Tangent", 53, 1, 54, 1),
    Sketcher.Constraint("Tangent", 54, 2, 55, 2),
    Sketcher.Constraint("Tangent", 55, 1, 52, 1),
    Sketcher.Constraint("Tangent", 56, 2, 57, 2),
    Sketcher.Constraint("Tangent", 57, 1, 58, 1),
    Sketcher.Constraint("Tangent", 58, 2, 59, 2),
    Sketcher.Constraint("Tangent", 59, 1, 56, 1),
    Sketcher.Constraint("Tangent", 60, 2, 61, 2),
    Sketcher.Constraint("Tangent", 61, 1, 62, 1),
    Sketcher.Constraint("Tangent", 62, 2, 63, 2),
    Sketcher.Constraint("Tangent", 63, 1, 60, 1),
    Sketcher.Constraint("Horizontal", 0),
    Sketcher.Constraint("Horizontal", 2),
    Sketcher.Constraint("Horizontal", 4),
    Sketcher.Constraint("Horizontal", 6),
    Sketcher.Constraint("Horizontal", 8),
    Sketcher.Constraint("Horizontal", 10),
    Sketcher.Constraint("Horizontal", 12),
    Sketcher.Constraint("Horizontal", 14),
    Sketcher.Constraint("Horizontal", 16),
    Sketcher.Constraint("Horizontal", 18),
    Sketcher.Constraint("Horizontal", 20),
    Sketcher.Constraint("Horizontal", 22),
    Sketcher.Constraint("Horizontal", 24),
    Sketcher.Constraint("Horizontal", 26),
    Sketcher.Constraint("Horizontal", 28),
    Sketcher.Constraint("Horizontal", 30),
    Sketcher.Constraint("Horizontal", 32),
    Sketcher.Constraint("Horizontal", 34),
    Sketcher.Constraint("Horizontal", 36),
    Sketcher.Constraint("Horizontal", 38),
    Sketcher.Constraint("Horizontal", 40),
    Sketcher.Constraint("Horizontal", 42),
    Sketcher.Constraint("Horizontal", 44),
    Sketcher.Constraint("Horizontal", 46),
    Sketcher.Constraint("Horizontal", 48),
    Sketcher.Constraint("Horizontal", 50),
    Sketcher.Constraint("Horizontal", 52),
    Sketcher.Constraint("Horizontal", 54),
    Sketcher.Constraint("Horizontal", 56),
    Sketcher.Constraint("Horizontal", 58),
    Sketcher.Constraint("Horizontal", 60),
    Sketcher.Constraint("Horizontal", 62),
    Sketcher.Constraint("Equal", 3, 5),
    Sketcher.Constraint("Equal", 7, 9),
    Sketcher.Constraint("Equal", 11, 13),
    Sketcher.Constraint("Equal", 15, 17),
    Sketcher.Constraint("Equal", 19, 21),
    Sketcher.Constraint("Equal", 23, 25),
    Sketcher.Constraint("Equal", 27, 29),
    Sketcher.Constraint("Equal", 31, 33),
    Sketcher.Constraint("Equal", 35, 37),
    Sketcher.Constraint("Equal", 39, 41),
    Sketcher.Constraint("Equal", 43, 45),
    Sketcher.Constraint("Equal", 47, 49),
    Sketcher.Constraint("Equal", 51, 53),
    Sketcher.Constraint("Equal", 55, 57),
    Sketcher.Constraint("Equal", 59, 61),
    Sketcher.Constraint("Horizontal", 3, 3, 37, 3),
    Sketcher.Constraint("Horizontal", 7, 3, 41, 3),
    Sketcher.Constraint("Horizontal", 43, 3, 45, 3),
    Sketcher.Constraint("Horizontal", 35, 3, 49, 3),
    Sketcher.Constraint("Horizontal", 51, 3, 53, 3),
    Sketcher.Constraint("Horizontal", 31, 3, 57, 3),
    Sketcher.Constraint("Horizontal", 27, 3, 61, 3),
    Sketcher.Constraint("Vertical", 1, 3, 5, 3),
    Sketcher.Constraint("Vertical", 3, 3, 7, 3),
    Sketcher.Constraint("Vertical", 5, 3, 9, 3),
    Sketcher.Constraint("Vertical", 7, 3, 11, 3),
    Sketcher.Constraint("Vertical", 9, 3, 13, 3),
    Sketcher.Constraint("Vertical", 11, 3, 15, 3),
    Sketcher.Constraint("Vertical", 13, 3, 17, 3),
    Sketcher.Constraint("Vertical", 15, 3, 19, 3),
    Sketcher.Constraint("Vertical", 17, 3, 21, 3),
    Sketcher.Constraint("Vertical", 19, 3, 23, 3),
    Sketcher.Constraint("Vertical", 21, 3, 25, 3),
    Sketcher.Constraint("Vertical", 23, 3, 27, 3),
    Sketcher.Constraint("Vertical", 25, 3, 29, 3),
    Sketcher.Constraint("Vertical", 27, 3, 31, 3),
    Sketcher.Constraint("Vertical", 29, 3, 33, 3),
    Sketcher.Constraint("Vertical", 31, 3, 35, 3),
    Sketcher.Constraint("Vertical", 37, 3, 41, 3),
    Sketcher.Constraint("Vertical", 39, 3, 43, 3),
    Sketcher.Constraint("Vertical", 41, 3, 49, 3),
    Sketcher.Constraint("Vertical", 43, 3, 51, 3),
    Sketcher.Constraint("Vertical", 45, 3, 53, 3),
    Sketcher.Constraint("Vertical", 47, 3, 55, 3),
    Sketcher.Constraint("Vertical", 53, 3, 57, 3),
    Sketcher.Constraint("Vertical", 55, 3, 59, 3),
    Sketcher.Constraint("Vertical", 57, 3, 61, 3),
    Sketcher.Constraint("Vertical", 59, 3, 63, 3),
    Sketcher.Constraint("Equal", 34, 36),
    Sketcher.Constraint("Equal", 42, 44),
    Sketcher.Constraint("Radius", 1, Q("2.5 mm")),
    Sketcher.Constraint("DistanceX", 0, 2, 0, 1, Q("50 mm")),
    Sketcher.Constraint("DistanceX", -1, 1, 1, 3, Q("57.265843 mm")),
    Sketcher.Constraint("DistanceY", 1, 3, -1, 1, Q("72.359506 mm")),
    Sketcher.Constraint("DistanceY", 5, 3, -1, 1, Q("57.359506 mm")),
    Sketcher.Constraint("DistanceY", 9, 3, -1, 1, Q("42.359506 mm")),
    Sketcher.Constraint("DistanceY", 13, 3, -1, 1, Q("27.359506 mm")),
    Sketcher.Constraint("DistanceY", 17, 3, -1, 1, Q("12.359506 mm")),
    Sketcher.Constraint("DistanceY", -1, 1, 21, 3, Q("2.640494 mm")),
    Sketcher.Constraint("DistanceY", -1, 1, 25, 3, Q("17.640494 mm")),
    Sketcher.Constraint("DistanceY", -1, 1, 29, 3, Q("32.640494 mm")),
    Sketcher.Constraint("DistanceY", -1, 1, 33, 3, Q("47.640494 mm")),
    Sketcher.Constraint("DistanceX", 37, 3, -1, 1, Q("12.734157 mm")),
    Sketcher.Constraint("DistanceX", 45, 3, -1, 1, Q("82.734157 mm")),
])
pocket2 = doc.addObject("PartDesign::Pocket", "Pocket001")
body.addObject(pocket2)
pocket2.Profile = sketch3
pocket2.Length = 10
pocket2.Reversed = True

sketch4 = doc.addObject("Sketcher::SketchObject", "Sketch003")
body.addObject(sketch4)
sketch4.AttachmentSupport = (doc.XZ_Plane, [""])
sketch4.MapMode = "FlatFace"
sketch4.AttachmentOffset = App.Placement(Vector(0, 0, -3), App.Rotation())
sketch4.addGeometry([
    Part.Circle(Vector(-97.734157, -67.359506, 0), Vector(0, 0, 1), 1.6),
    Part.Circle(Vector(-97.734157, -27.359506, 0), Vector(0, 0, 1), 1.6),
    Part.Circle(Vector(-97.734157, 12.640494, 0), Vector(0, 0, 1), 1.6),
    Part.Circle(Vector(-97.734157, 52.640494, 0), Vector(0, 0, 1), 1.6),
    Part.Circle(Vector(122.265843, 52.640494, 0), Vector(0, 0, 1), 1.6),
    Part.Circle(Vector(122.265843, 12.640494, 0), Vector(0, 0, 1), 1.6),
    Part.Circle(Vector(122.265843, -27.359506, 0), Vector(0, 0, 1), 1.6),
    Part.Circle(Vector(122.265843, -67.359506, 0), Vector(0, 0, 1), 1.6),
], False)
sketch4.addConstraint([
    Sketcher.Constraint("Equal", 0, 1),
    Sketcher.Constraint("Equal", 1, 2),
    Sketcher.Constraint("Equal", 2, 3),
    Sketcher.Constraint("Equal", 3, 4),
    Sketcher.Constraint("Equal", 4, 5),
    Sketcher.Constraint("Equal", 5, 6),
    Sketcher.Constraint("Equal", 6, 7),
    Sketcher.Constraint("Horizontal", 3, 3, 4, 3),
    Sketcher.Constraint("Horizontal", 2, 3, 5, 3),
    Sketcher.Constraint("Horizontal", 1, 3, 6, 3),
    Sketcher.Constraint("Horizontal", 0, 3, 7, 3),
    Sketcher.Constraint("Vertical", 0, 3, 1, 3),
    Sketcher.Constraint("Vertical", 1, 3, 2, 3),
    Sketcher.Constraint("Vertical", 2, 3, 3, 3),
    Sketcher.Constraint("Vertical", 4, 3, 5, 3),
    Sketcher.Constraint("Vertical", 5, 3, 6, 3),
    Sketcher.Constraint("Vertical", 6, 3, 7, 3),
    Sketcher.Constraint("Diameter", 0, Q("3.2 mm")),
    Sketcher.Constraint("DistanceY", 0, 3, 1, 3, Q("40 mm")),
    Sketcher.Constraint("DistanceY", 1, 3, 2, 3, Q("40 mm")),
    Sketcher.Constraint("DistanceY", 2, 3, 3, 3, Q("40 mm")),
    Sketcher.Constraint("DistanceX", 3, 3, 4, 3, Q("220 mm")),
    Sketcher.Constraint("DistanceX", 0, 3, -1, 1, Q("97.734157 mm")),
    Sketcher.Constraint("DistanceY", 0, 3, -1, 1, Q("67.359506 mm")),
])
pocket3 = doc.addObject("PartDesign::Pocket", "Pocket002")
body.addObject(pocket3)
pocket3.Profile = sketch4
pocket3.Length = 10
pocket3.Reversed = True

doc.recompute()
